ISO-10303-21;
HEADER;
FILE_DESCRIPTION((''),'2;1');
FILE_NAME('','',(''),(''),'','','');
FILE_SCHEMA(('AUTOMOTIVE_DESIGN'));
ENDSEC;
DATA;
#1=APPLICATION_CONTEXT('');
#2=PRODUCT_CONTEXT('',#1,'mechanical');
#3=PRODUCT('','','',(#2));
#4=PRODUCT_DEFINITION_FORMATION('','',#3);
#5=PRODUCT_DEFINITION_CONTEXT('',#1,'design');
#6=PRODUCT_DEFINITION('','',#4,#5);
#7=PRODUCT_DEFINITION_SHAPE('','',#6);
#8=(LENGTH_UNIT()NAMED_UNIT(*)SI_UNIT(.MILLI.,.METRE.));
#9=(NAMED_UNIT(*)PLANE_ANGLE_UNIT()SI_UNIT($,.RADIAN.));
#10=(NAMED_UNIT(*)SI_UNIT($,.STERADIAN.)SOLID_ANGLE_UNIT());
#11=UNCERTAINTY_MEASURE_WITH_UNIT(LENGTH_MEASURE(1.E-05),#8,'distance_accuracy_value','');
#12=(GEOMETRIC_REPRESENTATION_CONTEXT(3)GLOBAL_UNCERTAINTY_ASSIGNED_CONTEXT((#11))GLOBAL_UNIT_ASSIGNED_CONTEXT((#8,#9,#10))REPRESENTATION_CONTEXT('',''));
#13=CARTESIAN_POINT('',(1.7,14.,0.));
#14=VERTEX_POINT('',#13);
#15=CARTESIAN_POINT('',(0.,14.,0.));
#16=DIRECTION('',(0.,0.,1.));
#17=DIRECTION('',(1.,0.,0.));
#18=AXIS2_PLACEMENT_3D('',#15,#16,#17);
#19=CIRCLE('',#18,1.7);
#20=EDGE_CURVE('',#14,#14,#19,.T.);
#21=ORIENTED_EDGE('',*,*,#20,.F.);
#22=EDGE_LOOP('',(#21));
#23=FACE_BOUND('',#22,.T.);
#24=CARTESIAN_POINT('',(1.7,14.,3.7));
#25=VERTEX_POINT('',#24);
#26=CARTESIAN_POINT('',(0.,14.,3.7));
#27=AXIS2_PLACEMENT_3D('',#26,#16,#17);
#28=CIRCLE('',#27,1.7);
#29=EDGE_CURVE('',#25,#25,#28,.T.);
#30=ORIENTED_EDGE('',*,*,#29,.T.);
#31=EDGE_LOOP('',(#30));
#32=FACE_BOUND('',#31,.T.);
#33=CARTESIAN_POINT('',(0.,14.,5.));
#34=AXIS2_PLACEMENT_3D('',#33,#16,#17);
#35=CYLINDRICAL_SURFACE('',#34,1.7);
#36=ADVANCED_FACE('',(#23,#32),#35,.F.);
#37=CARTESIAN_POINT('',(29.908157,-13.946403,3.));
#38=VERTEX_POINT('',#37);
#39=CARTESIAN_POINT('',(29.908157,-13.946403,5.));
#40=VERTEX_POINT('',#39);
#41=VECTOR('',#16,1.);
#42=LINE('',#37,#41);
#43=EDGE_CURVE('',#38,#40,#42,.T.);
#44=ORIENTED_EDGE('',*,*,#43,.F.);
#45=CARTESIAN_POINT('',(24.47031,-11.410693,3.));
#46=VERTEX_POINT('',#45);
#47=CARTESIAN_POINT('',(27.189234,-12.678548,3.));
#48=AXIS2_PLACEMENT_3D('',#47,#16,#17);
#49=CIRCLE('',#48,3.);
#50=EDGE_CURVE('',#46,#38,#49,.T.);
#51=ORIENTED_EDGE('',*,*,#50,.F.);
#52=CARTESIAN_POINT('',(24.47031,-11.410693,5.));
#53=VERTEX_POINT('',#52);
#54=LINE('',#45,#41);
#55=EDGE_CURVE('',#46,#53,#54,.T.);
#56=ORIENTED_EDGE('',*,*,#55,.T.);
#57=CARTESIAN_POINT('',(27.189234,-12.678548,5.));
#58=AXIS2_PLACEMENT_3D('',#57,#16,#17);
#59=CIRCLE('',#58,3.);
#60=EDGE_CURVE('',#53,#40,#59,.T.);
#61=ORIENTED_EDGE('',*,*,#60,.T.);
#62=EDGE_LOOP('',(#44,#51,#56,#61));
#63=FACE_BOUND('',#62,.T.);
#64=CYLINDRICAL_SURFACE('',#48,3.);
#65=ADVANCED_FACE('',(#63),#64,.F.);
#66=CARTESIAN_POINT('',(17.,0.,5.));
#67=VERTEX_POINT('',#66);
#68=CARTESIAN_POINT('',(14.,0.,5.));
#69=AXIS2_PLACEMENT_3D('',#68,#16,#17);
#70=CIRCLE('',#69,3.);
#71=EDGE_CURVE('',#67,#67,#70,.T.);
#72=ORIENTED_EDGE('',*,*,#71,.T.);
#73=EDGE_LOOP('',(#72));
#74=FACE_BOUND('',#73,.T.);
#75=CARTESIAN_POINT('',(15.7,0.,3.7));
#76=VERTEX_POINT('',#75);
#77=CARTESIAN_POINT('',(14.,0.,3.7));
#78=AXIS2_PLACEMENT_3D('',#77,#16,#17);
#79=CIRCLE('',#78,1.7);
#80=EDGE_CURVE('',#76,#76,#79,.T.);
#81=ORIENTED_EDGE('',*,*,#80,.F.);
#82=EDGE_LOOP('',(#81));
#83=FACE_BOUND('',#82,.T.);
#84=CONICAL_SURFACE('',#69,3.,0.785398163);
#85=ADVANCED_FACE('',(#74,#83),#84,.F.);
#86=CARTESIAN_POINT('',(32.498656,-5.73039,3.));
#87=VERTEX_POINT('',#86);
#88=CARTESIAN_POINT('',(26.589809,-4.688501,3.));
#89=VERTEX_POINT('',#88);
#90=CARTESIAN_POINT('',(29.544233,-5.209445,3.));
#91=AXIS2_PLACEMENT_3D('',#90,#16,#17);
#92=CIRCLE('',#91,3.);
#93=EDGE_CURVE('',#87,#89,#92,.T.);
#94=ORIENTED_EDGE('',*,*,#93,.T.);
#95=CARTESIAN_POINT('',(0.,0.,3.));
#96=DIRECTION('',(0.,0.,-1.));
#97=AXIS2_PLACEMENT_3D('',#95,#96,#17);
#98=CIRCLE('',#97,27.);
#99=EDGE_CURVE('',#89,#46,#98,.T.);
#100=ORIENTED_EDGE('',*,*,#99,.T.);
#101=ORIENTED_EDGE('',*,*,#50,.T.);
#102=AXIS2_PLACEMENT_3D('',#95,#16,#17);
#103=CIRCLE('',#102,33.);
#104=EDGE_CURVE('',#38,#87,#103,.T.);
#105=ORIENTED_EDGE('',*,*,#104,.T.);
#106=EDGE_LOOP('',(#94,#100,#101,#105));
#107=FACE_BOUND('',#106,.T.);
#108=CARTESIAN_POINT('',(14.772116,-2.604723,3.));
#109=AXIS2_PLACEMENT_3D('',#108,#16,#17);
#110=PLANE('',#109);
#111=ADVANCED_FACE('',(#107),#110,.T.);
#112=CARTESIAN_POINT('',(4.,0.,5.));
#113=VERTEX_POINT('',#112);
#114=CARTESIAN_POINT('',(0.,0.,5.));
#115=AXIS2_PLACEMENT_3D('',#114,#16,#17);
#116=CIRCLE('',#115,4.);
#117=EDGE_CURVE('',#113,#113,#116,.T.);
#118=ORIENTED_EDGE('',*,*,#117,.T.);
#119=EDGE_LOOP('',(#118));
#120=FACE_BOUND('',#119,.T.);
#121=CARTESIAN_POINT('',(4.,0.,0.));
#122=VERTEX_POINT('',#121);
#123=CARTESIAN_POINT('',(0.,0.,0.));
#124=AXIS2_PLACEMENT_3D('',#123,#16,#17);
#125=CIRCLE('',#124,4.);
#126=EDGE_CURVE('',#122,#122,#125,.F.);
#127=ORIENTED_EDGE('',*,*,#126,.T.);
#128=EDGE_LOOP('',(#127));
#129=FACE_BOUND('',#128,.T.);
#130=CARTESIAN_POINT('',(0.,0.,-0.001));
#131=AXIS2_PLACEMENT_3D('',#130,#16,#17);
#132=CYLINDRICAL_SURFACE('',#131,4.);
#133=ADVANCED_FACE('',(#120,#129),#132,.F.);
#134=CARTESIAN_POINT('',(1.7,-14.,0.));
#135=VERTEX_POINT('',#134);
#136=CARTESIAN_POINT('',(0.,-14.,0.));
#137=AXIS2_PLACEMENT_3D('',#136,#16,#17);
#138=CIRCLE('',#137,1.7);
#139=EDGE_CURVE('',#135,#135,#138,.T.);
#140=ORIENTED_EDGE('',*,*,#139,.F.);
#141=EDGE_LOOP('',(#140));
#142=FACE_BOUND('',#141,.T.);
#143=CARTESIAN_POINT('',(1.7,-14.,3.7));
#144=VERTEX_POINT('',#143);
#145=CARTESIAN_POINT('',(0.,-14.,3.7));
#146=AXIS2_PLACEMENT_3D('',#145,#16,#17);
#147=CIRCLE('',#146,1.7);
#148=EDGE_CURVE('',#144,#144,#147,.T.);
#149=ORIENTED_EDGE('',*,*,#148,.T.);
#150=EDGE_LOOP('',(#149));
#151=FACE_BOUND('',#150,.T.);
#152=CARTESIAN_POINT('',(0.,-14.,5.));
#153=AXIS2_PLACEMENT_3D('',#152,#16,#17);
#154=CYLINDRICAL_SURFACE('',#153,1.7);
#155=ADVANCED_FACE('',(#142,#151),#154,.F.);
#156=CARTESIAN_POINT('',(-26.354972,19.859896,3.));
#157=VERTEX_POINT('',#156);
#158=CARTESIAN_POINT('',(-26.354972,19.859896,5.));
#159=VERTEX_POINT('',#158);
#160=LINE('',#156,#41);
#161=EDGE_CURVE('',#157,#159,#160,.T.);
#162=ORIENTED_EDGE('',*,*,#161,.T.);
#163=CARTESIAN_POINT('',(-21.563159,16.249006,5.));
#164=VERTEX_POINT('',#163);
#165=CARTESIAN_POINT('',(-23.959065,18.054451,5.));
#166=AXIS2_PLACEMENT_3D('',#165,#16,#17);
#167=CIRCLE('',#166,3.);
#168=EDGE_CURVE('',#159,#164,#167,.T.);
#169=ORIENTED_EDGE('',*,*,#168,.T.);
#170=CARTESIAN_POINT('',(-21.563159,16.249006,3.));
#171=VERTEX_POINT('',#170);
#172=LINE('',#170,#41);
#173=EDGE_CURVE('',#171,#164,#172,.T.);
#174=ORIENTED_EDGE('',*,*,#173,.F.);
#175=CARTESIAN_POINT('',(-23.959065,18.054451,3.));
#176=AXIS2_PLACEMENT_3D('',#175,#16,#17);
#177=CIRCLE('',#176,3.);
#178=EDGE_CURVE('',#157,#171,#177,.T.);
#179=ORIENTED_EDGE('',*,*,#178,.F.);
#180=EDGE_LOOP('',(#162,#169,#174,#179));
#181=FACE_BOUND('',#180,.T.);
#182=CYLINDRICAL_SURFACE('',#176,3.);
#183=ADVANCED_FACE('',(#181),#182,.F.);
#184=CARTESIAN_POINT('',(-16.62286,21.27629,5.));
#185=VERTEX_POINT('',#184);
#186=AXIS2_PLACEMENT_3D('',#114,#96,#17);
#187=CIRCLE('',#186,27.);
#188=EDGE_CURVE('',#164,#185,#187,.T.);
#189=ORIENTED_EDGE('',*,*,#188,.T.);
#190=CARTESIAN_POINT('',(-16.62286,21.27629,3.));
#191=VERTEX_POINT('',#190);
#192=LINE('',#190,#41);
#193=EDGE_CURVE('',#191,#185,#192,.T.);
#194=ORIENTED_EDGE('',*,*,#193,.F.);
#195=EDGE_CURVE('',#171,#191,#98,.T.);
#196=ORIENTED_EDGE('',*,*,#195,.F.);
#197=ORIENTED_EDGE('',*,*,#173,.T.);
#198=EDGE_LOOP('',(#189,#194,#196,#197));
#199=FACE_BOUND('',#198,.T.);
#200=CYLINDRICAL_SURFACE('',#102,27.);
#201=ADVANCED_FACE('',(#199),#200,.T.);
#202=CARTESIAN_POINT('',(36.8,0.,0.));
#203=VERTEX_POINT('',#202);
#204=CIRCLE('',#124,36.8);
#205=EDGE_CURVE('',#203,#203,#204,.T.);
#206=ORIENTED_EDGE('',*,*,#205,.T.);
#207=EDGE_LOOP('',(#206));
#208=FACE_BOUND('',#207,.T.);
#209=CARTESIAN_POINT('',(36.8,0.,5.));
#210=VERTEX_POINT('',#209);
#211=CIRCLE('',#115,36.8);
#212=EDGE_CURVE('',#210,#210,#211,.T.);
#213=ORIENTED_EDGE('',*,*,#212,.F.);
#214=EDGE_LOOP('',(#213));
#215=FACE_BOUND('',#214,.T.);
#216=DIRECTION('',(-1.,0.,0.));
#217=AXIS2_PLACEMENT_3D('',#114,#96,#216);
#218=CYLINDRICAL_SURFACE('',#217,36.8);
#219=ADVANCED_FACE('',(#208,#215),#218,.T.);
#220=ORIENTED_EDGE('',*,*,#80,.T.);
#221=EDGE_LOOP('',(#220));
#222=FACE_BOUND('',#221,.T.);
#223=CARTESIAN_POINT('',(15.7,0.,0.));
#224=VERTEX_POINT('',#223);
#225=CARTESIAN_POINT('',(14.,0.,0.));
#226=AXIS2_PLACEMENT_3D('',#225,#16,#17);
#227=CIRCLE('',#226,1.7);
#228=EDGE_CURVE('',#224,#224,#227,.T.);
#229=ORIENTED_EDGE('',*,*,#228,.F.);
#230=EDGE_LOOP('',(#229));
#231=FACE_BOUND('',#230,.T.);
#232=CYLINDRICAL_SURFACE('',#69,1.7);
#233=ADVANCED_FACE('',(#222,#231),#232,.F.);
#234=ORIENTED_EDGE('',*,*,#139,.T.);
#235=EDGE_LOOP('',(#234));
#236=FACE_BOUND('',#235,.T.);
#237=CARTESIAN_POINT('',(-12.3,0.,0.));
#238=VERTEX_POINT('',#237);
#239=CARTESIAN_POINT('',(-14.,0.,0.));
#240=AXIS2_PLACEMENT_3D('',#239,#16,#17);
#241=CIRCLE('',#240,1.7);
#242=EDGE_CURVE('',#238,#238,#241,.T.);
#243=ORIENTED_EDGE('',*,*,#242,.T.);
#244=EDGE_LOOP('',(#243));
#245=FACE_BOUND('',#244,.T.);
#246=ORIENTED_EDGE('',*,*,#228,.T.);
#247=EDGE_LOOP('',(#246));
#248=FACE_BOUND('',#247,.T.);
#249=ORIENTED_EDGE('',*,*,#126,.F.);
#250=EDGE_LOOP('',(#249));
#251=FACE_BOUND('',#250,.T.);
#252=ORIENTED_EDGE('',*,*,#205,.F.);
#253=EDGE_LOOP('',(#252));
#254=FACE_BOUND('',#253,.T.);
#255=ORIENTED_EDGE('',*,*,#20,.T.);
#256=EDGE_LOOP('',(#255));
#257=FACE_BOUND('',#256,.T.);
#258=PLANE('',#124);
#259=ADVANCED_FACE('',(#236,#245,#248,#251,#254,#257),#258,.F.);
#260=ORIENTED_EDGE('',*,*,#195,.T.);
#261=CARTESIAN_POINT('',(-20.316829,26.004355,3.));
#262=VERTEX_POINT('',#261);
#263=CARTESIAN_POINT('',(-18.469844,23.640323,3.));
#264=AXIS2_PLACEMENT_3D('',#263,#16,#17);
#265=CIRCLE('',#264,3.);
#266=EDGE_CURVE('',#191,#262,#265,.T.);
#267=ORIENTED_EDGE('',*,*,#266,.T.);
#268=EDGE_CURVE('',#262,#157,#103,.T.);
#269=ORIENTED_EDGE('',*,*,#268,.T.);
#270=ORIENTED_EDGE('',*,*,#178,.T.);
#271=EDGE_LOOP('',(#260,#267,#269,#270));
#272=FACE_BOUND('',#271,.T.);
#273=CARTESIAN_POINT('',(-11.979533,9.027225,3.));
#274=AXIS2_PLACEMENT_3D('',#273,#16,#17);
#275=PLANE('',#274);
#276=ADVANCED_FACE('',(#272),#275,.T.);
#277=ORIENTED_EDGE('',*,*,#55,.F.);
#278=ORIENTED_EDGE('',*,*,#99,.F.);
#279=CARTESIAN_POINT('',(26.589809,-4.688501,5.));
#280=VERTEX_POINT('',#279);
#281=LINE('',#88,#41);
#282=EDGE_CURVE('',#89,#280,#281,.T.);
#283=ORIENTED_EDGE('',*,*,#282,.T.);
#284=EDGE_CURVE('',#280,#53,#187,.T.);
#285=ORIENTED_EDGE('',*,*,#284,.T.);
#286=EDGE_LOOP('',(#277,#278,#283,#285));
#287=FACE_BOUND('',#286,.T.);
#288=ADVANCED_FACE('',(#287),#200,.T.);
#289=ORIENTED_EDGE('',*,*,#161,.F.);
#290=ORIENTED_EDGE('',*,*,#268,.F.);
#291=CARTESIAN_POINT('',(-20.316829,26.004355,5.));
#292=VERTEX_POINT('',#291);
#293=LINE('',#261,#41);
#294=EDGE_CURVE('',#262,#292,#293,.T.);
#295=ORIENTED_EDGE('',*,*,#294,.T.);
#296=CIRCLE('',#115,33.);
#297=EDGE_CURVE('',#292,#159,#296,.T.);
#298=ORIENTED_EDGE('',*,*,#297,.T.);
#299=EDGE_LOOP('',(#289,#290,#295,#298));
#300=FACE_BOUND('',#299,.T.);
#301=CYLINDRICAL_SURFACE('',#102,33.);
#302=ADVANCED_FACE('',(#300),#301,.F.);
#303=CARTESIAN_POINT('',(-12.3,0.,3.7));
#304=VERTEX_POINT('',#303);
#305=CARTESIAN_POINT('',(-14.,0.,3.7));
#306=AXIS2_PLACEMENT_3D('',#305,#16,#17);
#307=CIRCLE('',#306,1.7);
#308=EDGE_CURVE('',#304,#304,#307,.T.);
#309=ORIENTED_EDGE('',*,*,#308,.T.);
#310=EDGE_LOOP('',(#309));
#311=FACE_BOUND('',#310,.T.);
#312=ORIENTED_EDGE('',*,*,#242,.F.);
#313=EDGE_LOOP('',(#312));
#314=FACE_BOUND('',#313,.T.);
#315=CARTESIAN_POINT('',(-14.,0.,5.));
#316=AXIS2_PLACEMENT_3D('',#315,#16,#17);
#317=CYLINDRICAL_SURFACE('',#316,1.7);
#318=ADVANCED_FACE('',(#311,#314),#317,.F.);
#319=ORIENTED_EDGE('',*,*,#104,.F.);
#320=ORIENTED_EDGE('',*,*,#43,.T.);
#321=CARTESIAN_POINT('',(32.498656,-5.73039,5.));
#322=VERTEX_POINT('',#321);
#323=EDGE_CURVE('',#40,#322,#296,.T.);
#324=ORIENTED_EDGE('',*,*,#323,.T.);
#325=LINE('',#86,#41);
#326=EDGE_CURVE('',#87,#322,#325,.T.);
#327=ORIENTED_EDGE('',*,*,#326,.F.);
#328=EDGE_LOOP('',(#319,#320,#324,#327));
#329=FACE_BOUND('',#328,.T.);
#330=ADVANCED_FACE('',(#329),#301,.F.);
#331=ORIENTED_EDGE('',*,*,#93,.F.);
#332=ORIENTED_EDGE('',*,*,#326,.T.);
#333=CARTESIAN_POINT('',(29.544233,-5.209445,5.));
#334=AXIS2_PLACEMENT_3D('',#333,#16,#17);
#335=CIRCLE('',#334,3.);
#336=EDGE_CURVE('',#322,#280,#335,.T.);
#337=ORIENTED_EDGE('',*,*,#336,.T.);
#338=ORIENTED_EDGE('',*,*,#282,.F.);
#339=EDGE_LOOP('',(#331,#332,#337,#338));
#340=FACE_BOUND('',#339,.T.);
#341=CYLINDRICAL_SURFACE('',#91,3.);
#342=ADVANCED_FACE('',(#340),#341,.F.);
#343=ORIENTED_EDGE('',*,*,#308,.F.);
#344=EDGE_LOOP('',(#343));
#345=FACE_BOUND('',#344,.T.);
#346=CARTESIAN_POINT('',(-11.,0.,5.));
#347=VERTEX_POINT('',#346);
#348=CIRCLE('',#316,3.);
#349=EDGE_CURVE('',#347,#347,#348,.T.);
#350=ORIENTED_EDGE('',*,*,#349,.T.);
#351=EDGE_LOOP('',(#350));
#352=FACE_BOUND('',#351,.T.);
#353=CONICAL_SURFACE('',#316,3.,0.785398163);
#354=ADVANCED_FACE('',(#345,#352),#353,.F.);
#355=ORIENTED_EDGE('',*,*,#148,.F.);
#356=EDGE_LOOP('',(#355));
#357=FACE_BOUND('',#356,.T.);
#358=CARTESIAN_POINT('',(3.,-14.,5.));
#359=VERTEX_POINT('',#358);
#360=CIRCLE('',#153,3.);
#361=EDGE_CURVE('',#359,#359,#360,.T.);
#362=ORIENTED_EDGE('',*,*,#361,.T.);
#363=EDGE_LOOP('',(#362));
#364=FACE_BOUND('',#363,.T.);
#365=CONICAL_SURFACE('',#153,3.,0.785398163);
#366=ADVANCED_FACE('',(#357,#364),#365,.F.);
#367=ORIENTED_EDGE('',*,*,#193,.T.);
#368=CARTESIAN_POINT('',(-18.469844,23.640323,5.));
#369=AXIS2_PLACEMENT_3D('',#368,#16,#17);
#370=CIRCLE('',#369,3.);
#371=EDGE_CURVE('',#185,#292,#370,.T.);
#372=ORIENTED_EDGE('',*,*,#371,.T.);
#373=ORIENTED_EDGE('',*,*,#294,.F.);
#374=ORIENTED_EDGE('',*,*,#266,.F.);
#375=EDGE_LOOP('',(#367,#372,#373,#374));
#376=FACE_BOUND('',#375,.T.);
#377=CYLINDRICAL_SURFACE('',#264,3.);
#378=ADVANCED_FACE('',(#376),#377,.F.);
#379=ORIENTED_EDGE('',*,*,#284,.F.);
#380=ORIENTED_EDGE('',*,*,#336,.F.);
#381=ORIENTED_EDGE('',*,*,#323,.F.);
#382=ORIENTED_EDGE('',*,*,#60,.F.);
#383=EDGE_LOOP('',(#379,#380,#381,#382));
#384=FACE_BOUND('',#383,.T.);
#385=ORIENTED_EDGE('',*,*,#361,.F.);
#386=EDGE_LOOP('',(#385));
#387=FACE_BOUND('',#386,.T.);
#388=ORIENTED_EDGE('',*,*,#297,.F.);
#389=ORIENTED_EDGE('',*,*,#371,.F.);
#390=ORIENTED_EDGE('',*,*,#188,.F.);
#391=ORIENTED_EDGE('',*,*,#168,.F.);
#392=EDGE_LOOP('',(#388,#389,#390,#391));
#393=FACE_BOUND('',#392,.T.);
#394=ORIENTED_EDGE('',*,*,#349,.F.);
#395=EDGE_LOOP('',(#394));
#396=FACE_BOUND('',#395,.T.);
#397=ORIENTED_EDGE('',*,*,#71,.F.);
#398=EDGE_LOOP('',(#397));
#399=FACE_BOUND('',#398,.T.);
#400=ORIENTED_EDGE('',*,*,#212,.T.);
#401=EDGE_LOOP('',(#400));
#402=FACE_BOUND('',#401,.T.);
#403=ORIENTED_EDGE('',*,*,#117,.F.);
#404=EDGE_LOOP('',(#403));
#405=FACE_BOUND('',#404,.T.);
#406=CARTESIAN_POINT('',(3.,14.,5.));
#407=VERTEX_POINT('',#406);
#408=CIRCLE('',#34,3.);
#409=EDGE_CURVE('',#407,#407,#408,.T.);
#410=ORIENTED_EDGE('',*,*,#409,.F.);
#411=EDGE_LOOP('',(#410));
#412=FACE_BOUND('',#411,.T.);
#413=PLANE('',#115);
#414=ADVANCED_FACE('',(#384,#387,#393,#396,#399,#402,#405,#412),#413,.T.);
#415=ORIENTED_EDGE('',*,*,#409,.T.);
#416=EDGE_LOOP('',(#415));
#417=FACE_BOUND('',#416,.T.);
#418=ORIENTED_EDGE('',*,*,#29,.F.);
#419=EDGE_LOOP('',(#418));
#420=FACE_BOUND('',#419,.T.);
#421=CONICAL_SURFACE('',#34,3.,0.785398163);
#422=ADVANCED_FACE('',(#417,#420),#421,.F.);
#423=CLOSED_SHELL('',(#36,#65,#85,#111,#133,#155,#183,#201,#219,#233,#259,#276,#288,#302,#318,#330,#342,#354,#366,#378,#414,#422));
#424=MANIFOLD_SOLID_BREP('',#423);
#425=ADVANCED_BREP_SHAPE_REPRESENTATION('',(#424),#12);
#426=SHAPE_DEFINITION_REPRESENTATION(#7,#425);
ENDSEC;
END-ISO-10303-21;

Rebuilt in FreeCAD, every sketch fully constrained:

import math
import FreeCAD as App
import Part
import Sketcher

doc = App.newDocument("Part")
params = doc.addObject("Spreadsheet::Sheet", "Params")
for row, (alias, value) in enumerate([
    ("sketch1_diameter", "73.6 mm"),
    ("pad1_length", "5 mm"),
    ("sketch2_diameter", "8 mm"),
    ("sketch3_radius", "27 mm"),
    ("sketch3_radius2", "3 mm"),
    ("pocket2_length", "2 mm"),
    ("sketch4_radius", "33 mm"),
    ("sketch4_radius2", "3 mm"),
    ("pocket3_length", "2 mm"),
    ("sketch5_diameter", "3.4 mm"),
    ("hole_diameter", "3.4 mm"),
    ("hole_depth", "9 mm"),
    ("hole_csink_diameter", "6 mm"),
], start=1):
    params.set(f"A{row}", alias)
    params.set(f"B{row}", "=" + value)
    params.setAlias(f"B{row}", alias)

body = doc.addObject("PartDesign::Body", "Body")

# Sketch on XY plane
sketch1 = body.newObject("Sketcher::SketchObject", "Sketch")
sketch1.AttachmentSupport = (doc.getObject("XY_Plane"), [""])
sketch1.MapMode = "FlatFace"
sketch1.addGeometry(Part.Circle(App.Vector(0, 0, 0), App.Vector(0, 0, 1), 37), False)
sketch1.addConstraint([
    Sketcher.Constraint("Coincident", 0, 3, -1, 1),
    Sketcher.Constraint("Diameter", 0, 73.6),
])
sketch1.setExpression("Constraints[1]", "Params.sketch1_diameter")
pad1 = body.newObject("PartDesign::Pad", "Pad")
pad1.Profile = sketch1
pad1.setExpression("Length", "Params.pad1_length")

# Sketch on XY plane
sketch2 = body.newObject("Sketcher::SketchObject", "Sketch001")
sketch2.AttachmentSupport = (doc.getObject("XY_Plane"), [""])
sketch2.MapMode = "FlatFace"
sketch2.AttachmentOffset = App.Placement(App.Vector(0, 0, 5), App.Rotation())
sketch2.addGeometry(Part.Circle(App.Vector(0, 0, 0), App.Vector(0, 0, 1), 4), False)
sketch2.addConstraint([
    Sketcher.Constraint("Coincident", 0, 3, -1, 1),
    Sketcher.Constraint("Diameter", 0, 8.0),
])
sketch2.setExpression("Constraints[1]", "Params.sketch2_diameter")
pocket1 = body.newObject("PartDesign::Pocket", "Pocket")
pocket1.Profile = sketch2
pocket1.Type = "UpToFirst"

# Sketch on XY plane
sketch3 = body.newObject("Sketcher::SketchObject", "Sketch002")
sketch3.AttachmentSupport = (doc.getObject("XY_Plane"), [""])
sketch3.MapMode = "FlatFace"
sketch3.AttachmentOffset = App.Placement(App.Vector(0, 0, 5), App.Rotation())
sketch3.addGeometry([
    Part.ArcOfCircle(Part.Circle(App.Vector(0, 0, 0), App.Vector(0, 0, 1), 27), math.radians(-25), math.radians(-10)),
    Part.ArcOfCircle(Part.Circle(App.Vector(27.2, -12.7, 0), App.Vector(0, 0, 1), 3), math.radians(155), math.radians(335)),
    Part.ArcOfCircle(Part.Circle(App.Vector(0, 0, 0), App.Vector(0, 0, 1), 33), math.radians(-25), math.radians(-10)),
    Part.ArcOfCircle(Part.Circle(App.Vector(29.5, -5.2, 0), App.Vector(0, 0, 1), 3), math.radians(-10), math.radians(170)),
], False)
sketch3.addConstraint([
    Sketcher.Constraint("Tangent", 0, 1, 1, 1),
    Sketcher.Constraint("Tangent", 1, 2, 2, 1),
    Sketcher.Constraint("Tangent", 2, 2, 3, 1),
    Sketcher.Constraint("Tangent", 3, 2, 0, 2),
    Sketcher.Constraint("Coincident", 0, 3, -1, 1),
    Sketcher.Constraint("Coincident", 2, 3, -1, 1),
    Sketcher.Constraint("Radius", 0, 27.0),
    Sketcher.Constraint("Radius", 1, 3.0),
    Sketcher.Constraint("DistanceX", 1, 3, 3, 3, 2.354999),
    Sketcher.Constraint("DistanceY", 3, 2, -1, 1, 4.688501),
])
sketch3.setExpression("Constraints[6]", "Params.sketch3_radius")
sketch3.setExpression("Constraints[7]", "Params.sketch3_radius2")
pocket2 = body.newObject("PartDesign::Pocket", "Pocket001")
pocket2.Profile = sketch3
pocket2.setExpression("Length", "Params.pocket2_length")

# Sketch on XY plane
sketch4 = body.newObject("Sketcher::SketchObject", "Sketch003")
sketch4.AttachmentSupport = (doc.getObject("XY_Plane"), [""])
sketch4.MapMode = "FlatFace"
sketch4.AttachmentOffset = App.Placement(App.Vector(0, 0, 5), App.Rotation())
sketch4.addGeometry([
    Part.ArcOfCircle(Part.Circle(App.Vector(0, 0, 0), App.Vector(0, 0, 1), 33), math.radians(128), math.radians(143)),
    Part.ArcOfCircle(Part.Circle(App.Vector(-24, 18.1, 0), App.Vector(0, 0, 1), 3), math.radians(143), math.radians(323)),
    Part.ArcOfCircle(Part.Circle(App.Vector(0, 0, 0), App.Vector(0, 0, 1), 27), math.radians(128), math.radians(143)),
    Part.ArcOfCircle(Part.Circle(App.Vector(-18.5, 23.6, 0), App.Vector(0, 0, 1), 3), math.radians(-52), math.radians(128)),
], False)
sketch4.addConstraint([
    Sketcher.Constraint("Tangent", 0, 2, 1, 1),
    Sketcher.Constraint("Tangent", 1, 2, 2, 2),
    Sketcher.Constraint("Tangent", 2, 1, 3, 1),
    Sketcher.Constraint("Tangent", 3, 2, 0, 1),
    Sketcher.Constraint("Coincident", 0, 3, -1, 1),
    Sketcher.Constraint("Coincident", 2, 3, -1, 1),
    Sketcher.Constraint("Radius", 0, 33.0),
    Sketcher.Constraint("Radius", 1, 3.0),
    Sketcher.Constraint("DistanceX", 1, 2, 2, 1, 4.940299),
    Sketcher.Constraint("DistanceY", -1, 1, 1, 3, 18.054451),
])
sketch4.setExpression("Constraints[6]", "Params.sketch4_radius")
sketch4.setExpression("Constraints[7]", "Params.sketch4_radius2")
pocket3 = body.newObject("PartDesign::Pocket", "Pocket002")
pocket3.Profile = sketch4
pocket3.setExpression("Length", "Params.pocket3_length")

# Sketch on XY plane
sketch5 = body.newObject("Sketcher::SketchObject", "Sketch004")
sketch5.AttachmentSupport = (doc.getObject("XY_Plane"), [""])
sketch5.MapMode = "FlatFace"
sketch5.AttachmentOffset = App.Placement(App.Vector(0, 0, 5), App.Rotation())
sketch5.addGeometry([
    Part.Circle(App.Vector(0, 14, 0), App.Vector(0, 0, 1), 1.7),
    Part.Circle(App.Vector(14, 0, 0), App.Vector(0, 0, 1), 1.7),
    Part.Circle(App.Vector(0, -14, 0), App.Vector(0, 0, 1), 1.7),
    Part.Circle(App.Vector(-14, 0, 0), App.Vector(0, 0, 1), 1.7),
], False)
sketch5.addConstraint([
    Sketcher.Constraint("Equal", 0, 1),
    Sketcher.Constraint("Equal", 1, 2),
    Sketcher.Constraint("Equal", 2, 3),
    Sketcher.Constraint("Symmetric", 0, 3, 2, 3, -1, 1),
    Sketcher.Constraint("Symmetric", 1, 3, 3, 3, -1, 1),
    Sketcher.Constraint("PointOnObject", 0, 3, -2),
    Sketcher.Constraint("PointOnObject", 1, 3, -1),
    Sketcher.Constraint("Diameter", 0, 3.4),
    Sketcher.Constraint("DistanceY", -1, 1, 0, 3, 14.0),
    Sketcher.Constraint("DistanceX", -1, 1, 1, 3, 14.0),
])
sketch5.setExpression("Constraints[7]", "Params.sketch5_diameter")
doc.recompute()
hole = body.newObject("PartDesign::Hole", "Hole")
hole.Profile = sketch5
hole.ThreadType = "None"
hole.setExpression("Diameter", "Params.hole_diameter")
hole.DepthType = "Dimension"
hole.setExpression("Depth", "Params.hole_depth")
hole.DrillPoint = "Angled"
hole.DrillPointAngle = 118
hole.HoleCutType = "Countersink"
hole.setExpression("HoleCutDiameter", "Params.hole_csink_diameter")
hole.HoleCutCountersinkAngle = 90

doc.recompute()
